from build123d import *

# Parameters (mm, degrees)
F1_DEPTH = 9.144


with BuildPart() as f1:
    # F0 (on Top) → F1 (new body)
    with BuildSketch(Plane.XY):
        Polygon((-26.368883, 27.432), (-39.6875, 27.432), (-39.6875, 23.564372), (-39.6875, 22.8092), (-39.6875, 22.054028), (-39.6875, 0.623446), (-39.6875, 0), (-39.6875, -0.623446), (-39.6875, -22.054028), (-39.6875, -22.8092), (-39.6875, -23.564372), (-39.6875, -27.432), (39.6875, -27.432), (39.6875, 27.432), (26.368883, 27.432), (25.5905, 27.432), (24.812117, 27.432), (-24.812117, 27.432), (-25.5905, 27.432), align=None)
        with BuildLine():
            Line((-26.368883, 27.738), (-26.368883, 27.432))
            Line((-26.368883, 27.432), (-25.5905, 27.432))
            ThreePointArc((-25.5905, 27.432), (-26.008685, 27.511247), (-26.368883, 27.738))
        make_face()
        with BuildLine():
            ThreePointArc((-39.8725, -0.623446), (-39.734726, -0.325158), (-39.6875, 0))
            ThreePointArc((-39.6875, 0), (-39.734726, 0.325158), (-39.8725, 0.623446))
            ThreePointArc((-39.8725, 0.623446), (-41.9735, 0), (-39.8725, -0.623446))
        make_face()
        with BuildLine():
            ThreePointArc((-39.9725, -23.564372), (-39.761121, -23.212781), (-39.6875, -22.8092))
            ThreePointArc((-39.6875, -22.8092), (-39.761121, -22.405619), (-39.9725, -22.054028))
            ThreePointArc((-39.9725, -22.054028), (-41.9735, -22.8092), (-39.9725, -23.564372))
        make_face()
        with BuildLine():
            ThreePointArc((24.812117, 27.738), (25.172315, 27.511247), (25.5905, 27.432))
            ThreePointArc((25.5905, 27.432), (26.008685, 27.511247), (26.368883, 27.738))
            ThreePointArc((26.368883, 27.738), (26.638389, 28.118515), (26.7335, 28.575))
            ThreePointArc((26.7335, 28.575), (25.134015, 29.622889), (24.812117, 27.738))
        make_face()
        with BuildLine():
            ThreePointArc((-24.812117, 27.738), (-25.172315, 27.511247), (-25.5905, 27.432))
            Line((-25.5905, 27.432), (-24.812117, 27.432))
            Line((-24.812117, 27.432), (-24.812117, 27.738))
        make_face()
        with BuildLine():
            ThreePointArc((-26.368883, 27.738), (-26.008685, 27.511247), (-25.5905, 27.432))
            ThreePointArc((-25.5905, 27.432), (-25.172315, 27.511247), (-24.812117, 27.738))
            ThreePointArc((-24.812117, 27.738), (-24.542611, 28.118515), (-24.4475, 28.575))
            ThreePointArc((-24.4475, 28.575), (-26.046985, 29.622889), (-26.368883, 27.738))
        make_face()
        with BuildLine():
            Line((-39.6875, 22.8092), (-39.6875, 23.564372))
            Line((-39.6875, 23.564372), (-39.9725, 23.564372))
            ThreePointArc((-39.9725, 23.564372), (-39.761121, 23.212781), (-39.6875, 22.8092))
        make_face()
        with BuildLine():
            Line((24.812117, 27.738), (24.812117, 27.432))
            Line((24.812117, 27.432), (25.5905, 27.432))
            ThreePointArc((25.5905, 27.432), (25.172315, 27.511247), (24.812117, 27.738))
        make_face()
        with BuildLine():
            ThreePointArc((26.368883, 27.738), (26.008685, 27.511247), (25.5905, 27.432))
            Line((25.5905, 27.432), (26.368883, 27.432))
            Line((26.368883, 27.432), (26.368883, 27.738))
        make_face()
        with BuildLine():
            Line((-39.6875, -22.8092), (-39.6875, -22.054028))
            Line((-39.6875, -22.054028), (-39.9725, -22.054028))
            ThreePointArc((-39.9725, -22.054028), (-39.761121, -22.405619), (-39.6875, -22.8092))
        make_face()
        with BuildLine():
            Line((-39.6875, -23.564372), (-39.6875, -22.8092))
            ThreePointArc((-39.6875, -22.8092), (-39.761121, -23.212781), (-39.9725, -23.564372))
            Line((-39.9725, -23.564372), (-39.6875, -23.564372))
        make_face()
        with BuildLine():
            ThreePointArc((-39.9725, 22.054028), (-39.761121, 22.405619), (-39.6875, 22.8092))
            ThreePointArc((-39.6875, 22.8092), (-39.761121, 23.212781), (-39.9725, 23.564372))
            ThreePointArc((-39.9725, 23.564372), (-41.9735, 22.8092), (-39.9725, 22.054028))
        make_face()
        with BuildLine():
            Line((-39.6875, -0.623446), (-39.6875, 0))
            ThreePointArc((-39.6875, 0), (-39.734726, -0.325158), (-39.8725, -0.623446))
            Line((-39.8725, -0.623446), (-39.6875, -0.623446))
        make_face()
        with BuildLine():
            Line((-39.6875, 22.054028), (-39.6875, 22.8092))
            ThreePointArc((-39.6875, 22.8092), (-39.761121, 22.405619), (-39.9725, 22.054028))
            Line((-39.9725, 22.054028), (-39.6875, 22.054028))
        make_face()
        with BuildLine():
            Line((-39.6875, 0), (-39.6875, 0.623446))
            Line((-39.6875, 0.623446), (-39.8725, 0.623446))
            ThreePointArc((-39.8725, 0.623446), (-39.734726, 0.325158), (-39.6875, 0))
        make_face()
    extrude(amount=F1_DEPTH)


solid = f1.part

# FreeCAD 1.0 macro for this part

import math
import FreeCAD as App
import Part
import Sketcher
from FreeCAD import Vector
Q = App.Units.Quantity

doc = App.newDocument("Part")
params = doc.addObject("Spreadsheet::Sheet", "Params")
for row, (alias, value) in enumerate([
    ("sketch1_radius", "0.045 in"),
    ("sketch1_height", "2.16 in"),
    ("sketch1_width", "3.125 in"),
    ("pad1_length", "0.36 in"),
], start=1):
    params.set(f"A{row}", alias)
    params.set(f"B{row}", "=" + value)
    params.setAlias(f"B{row}", alias)

body = doc.addObject("PartDesign::Body", "Body")

# Sketch on XY plane
sketch1 = body.newObject("Sketcher::SketchObject", "Sketch")
sketch1.AttachmentSupport = (doc.getObject("XY_Plane"), [""])
sketch1.MapMode = "FlatFace"
sketch1.addGeometry(Part.LineSegment(Vector(-39.6875, 27.432, 0), Vector(-39.6875, 23.564372, 0)), False)
sketch1.addGeometry(Part.LineSegment(Vector(-39.6875, 23.564372, 0), Vector(-39.9725, 23.564372, 0)), False)
sketch1.addGeometry(Part.ArcOfCircle(Part.Circle(Vector(-40.8305, 22.8092, 0), Vector(0, 0, 1), 1.143), math.radians(41.352742), math.radians(318.647258)), False)
sketch1.addGeometry(Part.LineSegment(Vector(-39.9725, 22.054028, 0), Vector(-39.6875, 22.054028, 0)), False)
sketch1.addGeometry(Part.LineSegment(Vector(-39.6875, 22.054028, 0), Vector(-39.6875, 0.623446, 0)), False)
sketch1.addGeometry(Part.LineSegment(Vector(-39.6875, 0.623446, 0), Vector(-39.8725, 0.623446, 0)), False)
sketch1.addGeometry(Part.ArcOfCircle(Part.Circle(Vector(-40.8305, 0, 0), Vector(0, 0, 1), 1.143), math.radians(33.055221), math.radians(326.944779)), False)
sketch1.addGeometry(Part.LineSegment(Vector(-39.8725, -0.623446, 0), Vector(-39.6875, -0.623446, 0)), False)
sketch1.addGeometry(Part.LineSegment(Vector(-39.6875, -0.623446, 0), Vector(-39.6875, -22.054028, 0)), False)
sketch1.addGeometry(Part.LineSegment(Vector(-39.6875, -22.054028, 0), Vector(-39.9725, -22.054028, 0)), False)
sketch1.addGeometry(Part.ArcOfCircle(Part.Circle(Vector(-40.8305, -22.8092, 0), Vector(0, 0, 1), 1.143), math.radians(41.352742), math.radians(318.647258)), False)
sketch1.addGeometry(Part.LineSegment(Vector(-39.9725, -23.564372, 0), Vector(-39.6875, -23.564372, 0)), False)
sketch1.addGeometry(Part.LineSegment(Vector(-39.6875, -23.564372, 0), Vector(-39.6875, -27.432, 0)), False)
sketch1.addGeometry(Part.LineSegment(Vector(-39.6875, -27.432, 0), Vector(39.6875, -27.432, 0)), False)
sketch1.addGeometry(Part.LineSegment(Vector(39.6875, -27.432, 0), Vector(39.6875, 27.432, 0)), False)
sketch1.addGeometry(Part.LineSegment(Vector(39.6875, 27.432, 0), Vector(26.368883, 27.432, 0)), False)
sketch1.addGeometry(Part.LineSegment(Vector(26.368883, 27.432, 0), Vector(26.368883, 27.738, 0)), False)
sketch1.addGeometry(Part.ArcOfCircle(Part.Circle(Vector(25.590504, 28.574998, 0), Vector(0, 0, 1), 1.142996), math.radians(-47.078254), math.radians(0.000093)), False)
sketch1.addGeometry(Part.ArcOfCircle(Part.Circle(Vector(25.5905, 28.575, 0), Vector(0, 0, 1), 1.143), math.radians(-0.000012), math.radians(227.078179)), False)
sketch1.addGeometry(Part.LineSegment(Vector(24.812117, 27.738, 0), Vector(24.812117, 27.432, 0)), False)
sketch1.addGeometry(Part.LineSegment(Vector(24.812117, 27.432, 0), Vector(-24.812117, 27.432, 0)), False)
sketch1.addGeometry(Part.LineSegment(Vector(-24.812117, 27.432, 0), Vector(-24.812117, 27.738, 0)), False)
sketch1.addGeometry(Part.ArcOfCircle(Part.Circle(Vector(-25.590496, 28.574998, 0), Vector(0, 0, 1), 1.142996), math.radians(-47.078254), math.radians(0.000093)), False)
sketch1.addGeometry(Part.ArcOfCircle(Part.Circle(Vector(-25.5905, 28.575, 0), Vector(0, 0, 1), 1.143), math.radians(-0.000012), math.radians(227.078179)), False)
sketch1.addGeometry(Part.LineSegment(Vector(-26.368883, 27.738, 0), Vector(-26.368883, 27.432, 0)), False)
sketch1.addGeometry(Part.LineSegment(Vector(-26.368883, 27.432, 0), Vector(-39.6875, 27.432, 0)), False)
sketch1.addConstraint(Sketcher.Constraint("Coincident", 0, 2, 1, 1))
sketch1.addConstraint(Sketcher.Constraint("Coincident", 1, 2, 2, 1))
sketch1.addConstraint(Sketcher.Constraint("Coincident", 2, 2, 3, 1))
sketch1.addConstraint(Sketcher.Constraint("Coincident", 3, 2, 4, 1))
sketch1.addConstraint(Sketcher.Constraint("Coincident", 4, 2, 5, 1))
sketch1.addConstraint(Sketcher.Constraint("Coincident", 5, 2, 6, 1))
sketch1.addConstraint(Sketcher.Constraint("Coincident", 6, 2, 7, 1))
sketch1.addConstraint(Sketcher.Constraint("Coincident", 7, 2, 8, 1))
sketch1.addConstraint(Sketcher.Constraint("Coincident", 8, 2, 9, 1))
sketch1.addConstraint(Sketcher.Constraint("Coincident", 9, 2, 10, 1))
sketch1.addConstraint(Sketcher.Constraint("Coincident", 10, 2, 11, 1))
sketch1.addConstraint(Sketcher.Constraint("Coincident", 11, 2, 12, 1))
sketch1.addConstraint(Sketcher.Constraint("Coincident", 12, 2, 13, 1))
sketch1.addConstraint(Sketcher.Constraint("Coincident", 13, 2, 14, 1))
sketch1.addConstraint(Sketcher.Constraint("Coincident", 14, 2, 15, 1))
sketch1.addConstraint(Sketcher.Constraint("Coincident", 15, 2, 16, 1))
sketch1.addConstraint(Sketcher.Constraint("Coincident", 16, 2, 17, 1))
sketch1.addConstraint(Sketcher.Constraint("Tangent", 17, 2, 18, 1))
sketch1.addConstraint(Sketcher.Constraint("Coincident", 18, 2, 19, 1))
sketch1.addConstraint(Sketcher.Constraint("Coincident", 19, 2, 20, 1))
sketch1.addConstraint(Sketcher.Constraint("Coincident", 20, 2, 21, 1))
sketch1.addConstraint(Sketcher.Constraint("Coincident", 21, 2, 22, 1))
sketch1.addConstraint(Sketcher.Constraint("Tangent", 22, 2, 23, 1))
sketch1.addConstraint(Sketcher.Constraint("Coincident", 23, 2, 24, 1))
sketch1.addConstraint(Sketcher.Constraint("Coincident", 24, 2, 25, 1))
sketch1.addConstraint(Sketcher.Constraint("Coincident", 25, 2, 0, 1))
sketch1.addConstraint(Sketcher.Constraint("Vertical", 0))
sketch1.addConstraint(Sketcher.Constraint("Horizontal", 1))
sketch1.addConstraint(Sketcher.Constraint("Horizontal", 3))
sketch1.addConstraint(Sketcher.Constraint("Vertical", 4))
sketch1.addConstraint(Sketcher.Constraint("Horizontal", 5))
sketch1.addConstraint(Sketcher.Constraint("Horizontal", 7))
sketch1.addConstraint(Sketcher.Constraint("Vertical", 8))
sketch1.addConstraint(Sketcher.Constraint("Horizontal", 9))
sketch1.addConstraint(Sketcher.Constraint("Horizontal", 11))
sketch1.addConstraint(Sketcher.Constraint("Vertical", 12))
sketch1.addConstraint(Sketcher.Constraint("Horizontal", 13))
sketch1.addConstraint(Sketcher.Constraint("Vertical", 14))
sketch1.addConstraint(Sketcher.Constraint("Horizontal", 15))
sketch1.addConstraint(Sketcher.Constraint("Vertical", 16))
sketch1.addConstraint(Sketcher.Constraint("Vertical", 19))
sketch1.addConstraint(Sketcher.Constraint("Horizontal", 20))
sketch1.addConstraint(Sketcher.Constraint("Vertical", 21))
sketch1.addConstraint(Sketcher.Constraint("Vertical", 24))
sketch1.addConstraint(Sketcher.Constraint("Horizontal", 25))
sketch1.addConstraint(Sketcher.Constraint("Equal", 2, 6))
sketch1.addConstraint(Sketcher.Constraint("Equal", 6, 10))
sketch1.addConstraint(Sketcher.Constraint("Equal", 10, 18))
sketch1.addConstraint(Sketcher.Constraint("Equal", 17, 22))
sketch1.addConstraint(Sketcher.Constraint("Equal", 18, 23))
sketch1.addConstraint(Sketcher.Constraint("Symmetric", 12, 2, 14, 2, -1, 1))
sketch1.addConstraint(Sketcher.Constraint("Symmetric", 13, 2, 25, 2, -1, 1))
sketch1.addConstraint(Sketcher.Constraint("Symmetric", 17, 3, 22, 3, -2))
sketch1.addConstraint(Sketcher.Constraint("Symmetric", 18, 2, 21, 2, -2))
sketch1.addConstraint(Sketcher.Constraint("Symmetric", 2, 3, 10, 3, -1))
sketch1.addConstraint(Sketcher.Constraint("Symmetric", 5, 2, 6, 2, -1))
sketch1.addConstraint(Sketcher.Constraint("Symmetric", 3, 2, 8, 2, -1))
sketch1.addConstraint(Sketcher.Constraint("Horizontal", 23, 3, 17, 2))
sketch1.addConstraint(Sketcher.Constraint("Horizontal", 16, 2, 18, 2))
sketch1.addConstraint(Sketcher.Constraint("Horizontal", 15, 2, 19, 2))
sketch1.addConstraint(Sketcher.Constraint("Horizontal", 17, 2, 22, 2))
sketch1.addConstraint(Sketcher.Constraint("Horizontal", 21, 2, 23, 2))
sketch1.addConstraint(Sketcher.Constraint("Vertical", 2, 3, 6, 3))
sketch1.addConstraint(Sketcher.Constraint("Vertical", 1, 2, 2, 2))
sketch1.addConstraint(Sketcher.Constraint("Vertical", 0, 2, 3, 2))
sketch1.addConstraint(Sketcher.Constraint("Vertical", 9, 2, 10, 2))
sketch1.addConstraint(Sketcher.Constraint("Radius", 2, Q("0.045 in")))
sketch1.addConstraint(Sketcher.Constraint("DistanceY", 14, 1, 14, 2, Q("2.16 in")))
sketch1.addConstraint(Sketcher.Constraint("DistanceX", 2, 3, 22, 3, Q("0.6000002 in")))
sketch1.addConstraint(Sketcher.Constraint("DistanceX", 0, 2, 22, 2, Q("0.6 in")))
sketch1.addConstraint(Sketcher.Constraint("DistanceX", 13, 1, 13, 2, Q("3.125 in")))
sketch1.addConstraint(Sketcher.Constraint("DistanceY", -1, 1, 2, 3, Q("0.898 in")))
sketch1.addConstraint(Sketcher.Constraint("DistanceY", -1, 1, 17, 3, Q("1.1249999 in")))
sketch1.addConstraint(Sketcher.Constraint("DistanceX", 1, 2, 1, 1, 0.285))
sketch1.addConstraint(Sketcher.Constraint("DistanceX", 5, 2, 5, 1, 0.185))
sketch1.addConstraint(Sketcher.Constraint("DistanceY", 16, 1, 16, 2, 0.306))
sketch1.setExpression("Constraints[66]", "Params.sketch1_radius")
sketch1.setExpression("Constraints[67]", "Params.sketch1_height")
sketch1.setExpression("Constraints[70]", "Params.sketch1_width")
pad1 = body.newObject("PartDesign::Pad", "Pad")
pad1.Profile = sketch1
pad1.setExpression("Length", "Params.pad1_length")

doc.recompute()
